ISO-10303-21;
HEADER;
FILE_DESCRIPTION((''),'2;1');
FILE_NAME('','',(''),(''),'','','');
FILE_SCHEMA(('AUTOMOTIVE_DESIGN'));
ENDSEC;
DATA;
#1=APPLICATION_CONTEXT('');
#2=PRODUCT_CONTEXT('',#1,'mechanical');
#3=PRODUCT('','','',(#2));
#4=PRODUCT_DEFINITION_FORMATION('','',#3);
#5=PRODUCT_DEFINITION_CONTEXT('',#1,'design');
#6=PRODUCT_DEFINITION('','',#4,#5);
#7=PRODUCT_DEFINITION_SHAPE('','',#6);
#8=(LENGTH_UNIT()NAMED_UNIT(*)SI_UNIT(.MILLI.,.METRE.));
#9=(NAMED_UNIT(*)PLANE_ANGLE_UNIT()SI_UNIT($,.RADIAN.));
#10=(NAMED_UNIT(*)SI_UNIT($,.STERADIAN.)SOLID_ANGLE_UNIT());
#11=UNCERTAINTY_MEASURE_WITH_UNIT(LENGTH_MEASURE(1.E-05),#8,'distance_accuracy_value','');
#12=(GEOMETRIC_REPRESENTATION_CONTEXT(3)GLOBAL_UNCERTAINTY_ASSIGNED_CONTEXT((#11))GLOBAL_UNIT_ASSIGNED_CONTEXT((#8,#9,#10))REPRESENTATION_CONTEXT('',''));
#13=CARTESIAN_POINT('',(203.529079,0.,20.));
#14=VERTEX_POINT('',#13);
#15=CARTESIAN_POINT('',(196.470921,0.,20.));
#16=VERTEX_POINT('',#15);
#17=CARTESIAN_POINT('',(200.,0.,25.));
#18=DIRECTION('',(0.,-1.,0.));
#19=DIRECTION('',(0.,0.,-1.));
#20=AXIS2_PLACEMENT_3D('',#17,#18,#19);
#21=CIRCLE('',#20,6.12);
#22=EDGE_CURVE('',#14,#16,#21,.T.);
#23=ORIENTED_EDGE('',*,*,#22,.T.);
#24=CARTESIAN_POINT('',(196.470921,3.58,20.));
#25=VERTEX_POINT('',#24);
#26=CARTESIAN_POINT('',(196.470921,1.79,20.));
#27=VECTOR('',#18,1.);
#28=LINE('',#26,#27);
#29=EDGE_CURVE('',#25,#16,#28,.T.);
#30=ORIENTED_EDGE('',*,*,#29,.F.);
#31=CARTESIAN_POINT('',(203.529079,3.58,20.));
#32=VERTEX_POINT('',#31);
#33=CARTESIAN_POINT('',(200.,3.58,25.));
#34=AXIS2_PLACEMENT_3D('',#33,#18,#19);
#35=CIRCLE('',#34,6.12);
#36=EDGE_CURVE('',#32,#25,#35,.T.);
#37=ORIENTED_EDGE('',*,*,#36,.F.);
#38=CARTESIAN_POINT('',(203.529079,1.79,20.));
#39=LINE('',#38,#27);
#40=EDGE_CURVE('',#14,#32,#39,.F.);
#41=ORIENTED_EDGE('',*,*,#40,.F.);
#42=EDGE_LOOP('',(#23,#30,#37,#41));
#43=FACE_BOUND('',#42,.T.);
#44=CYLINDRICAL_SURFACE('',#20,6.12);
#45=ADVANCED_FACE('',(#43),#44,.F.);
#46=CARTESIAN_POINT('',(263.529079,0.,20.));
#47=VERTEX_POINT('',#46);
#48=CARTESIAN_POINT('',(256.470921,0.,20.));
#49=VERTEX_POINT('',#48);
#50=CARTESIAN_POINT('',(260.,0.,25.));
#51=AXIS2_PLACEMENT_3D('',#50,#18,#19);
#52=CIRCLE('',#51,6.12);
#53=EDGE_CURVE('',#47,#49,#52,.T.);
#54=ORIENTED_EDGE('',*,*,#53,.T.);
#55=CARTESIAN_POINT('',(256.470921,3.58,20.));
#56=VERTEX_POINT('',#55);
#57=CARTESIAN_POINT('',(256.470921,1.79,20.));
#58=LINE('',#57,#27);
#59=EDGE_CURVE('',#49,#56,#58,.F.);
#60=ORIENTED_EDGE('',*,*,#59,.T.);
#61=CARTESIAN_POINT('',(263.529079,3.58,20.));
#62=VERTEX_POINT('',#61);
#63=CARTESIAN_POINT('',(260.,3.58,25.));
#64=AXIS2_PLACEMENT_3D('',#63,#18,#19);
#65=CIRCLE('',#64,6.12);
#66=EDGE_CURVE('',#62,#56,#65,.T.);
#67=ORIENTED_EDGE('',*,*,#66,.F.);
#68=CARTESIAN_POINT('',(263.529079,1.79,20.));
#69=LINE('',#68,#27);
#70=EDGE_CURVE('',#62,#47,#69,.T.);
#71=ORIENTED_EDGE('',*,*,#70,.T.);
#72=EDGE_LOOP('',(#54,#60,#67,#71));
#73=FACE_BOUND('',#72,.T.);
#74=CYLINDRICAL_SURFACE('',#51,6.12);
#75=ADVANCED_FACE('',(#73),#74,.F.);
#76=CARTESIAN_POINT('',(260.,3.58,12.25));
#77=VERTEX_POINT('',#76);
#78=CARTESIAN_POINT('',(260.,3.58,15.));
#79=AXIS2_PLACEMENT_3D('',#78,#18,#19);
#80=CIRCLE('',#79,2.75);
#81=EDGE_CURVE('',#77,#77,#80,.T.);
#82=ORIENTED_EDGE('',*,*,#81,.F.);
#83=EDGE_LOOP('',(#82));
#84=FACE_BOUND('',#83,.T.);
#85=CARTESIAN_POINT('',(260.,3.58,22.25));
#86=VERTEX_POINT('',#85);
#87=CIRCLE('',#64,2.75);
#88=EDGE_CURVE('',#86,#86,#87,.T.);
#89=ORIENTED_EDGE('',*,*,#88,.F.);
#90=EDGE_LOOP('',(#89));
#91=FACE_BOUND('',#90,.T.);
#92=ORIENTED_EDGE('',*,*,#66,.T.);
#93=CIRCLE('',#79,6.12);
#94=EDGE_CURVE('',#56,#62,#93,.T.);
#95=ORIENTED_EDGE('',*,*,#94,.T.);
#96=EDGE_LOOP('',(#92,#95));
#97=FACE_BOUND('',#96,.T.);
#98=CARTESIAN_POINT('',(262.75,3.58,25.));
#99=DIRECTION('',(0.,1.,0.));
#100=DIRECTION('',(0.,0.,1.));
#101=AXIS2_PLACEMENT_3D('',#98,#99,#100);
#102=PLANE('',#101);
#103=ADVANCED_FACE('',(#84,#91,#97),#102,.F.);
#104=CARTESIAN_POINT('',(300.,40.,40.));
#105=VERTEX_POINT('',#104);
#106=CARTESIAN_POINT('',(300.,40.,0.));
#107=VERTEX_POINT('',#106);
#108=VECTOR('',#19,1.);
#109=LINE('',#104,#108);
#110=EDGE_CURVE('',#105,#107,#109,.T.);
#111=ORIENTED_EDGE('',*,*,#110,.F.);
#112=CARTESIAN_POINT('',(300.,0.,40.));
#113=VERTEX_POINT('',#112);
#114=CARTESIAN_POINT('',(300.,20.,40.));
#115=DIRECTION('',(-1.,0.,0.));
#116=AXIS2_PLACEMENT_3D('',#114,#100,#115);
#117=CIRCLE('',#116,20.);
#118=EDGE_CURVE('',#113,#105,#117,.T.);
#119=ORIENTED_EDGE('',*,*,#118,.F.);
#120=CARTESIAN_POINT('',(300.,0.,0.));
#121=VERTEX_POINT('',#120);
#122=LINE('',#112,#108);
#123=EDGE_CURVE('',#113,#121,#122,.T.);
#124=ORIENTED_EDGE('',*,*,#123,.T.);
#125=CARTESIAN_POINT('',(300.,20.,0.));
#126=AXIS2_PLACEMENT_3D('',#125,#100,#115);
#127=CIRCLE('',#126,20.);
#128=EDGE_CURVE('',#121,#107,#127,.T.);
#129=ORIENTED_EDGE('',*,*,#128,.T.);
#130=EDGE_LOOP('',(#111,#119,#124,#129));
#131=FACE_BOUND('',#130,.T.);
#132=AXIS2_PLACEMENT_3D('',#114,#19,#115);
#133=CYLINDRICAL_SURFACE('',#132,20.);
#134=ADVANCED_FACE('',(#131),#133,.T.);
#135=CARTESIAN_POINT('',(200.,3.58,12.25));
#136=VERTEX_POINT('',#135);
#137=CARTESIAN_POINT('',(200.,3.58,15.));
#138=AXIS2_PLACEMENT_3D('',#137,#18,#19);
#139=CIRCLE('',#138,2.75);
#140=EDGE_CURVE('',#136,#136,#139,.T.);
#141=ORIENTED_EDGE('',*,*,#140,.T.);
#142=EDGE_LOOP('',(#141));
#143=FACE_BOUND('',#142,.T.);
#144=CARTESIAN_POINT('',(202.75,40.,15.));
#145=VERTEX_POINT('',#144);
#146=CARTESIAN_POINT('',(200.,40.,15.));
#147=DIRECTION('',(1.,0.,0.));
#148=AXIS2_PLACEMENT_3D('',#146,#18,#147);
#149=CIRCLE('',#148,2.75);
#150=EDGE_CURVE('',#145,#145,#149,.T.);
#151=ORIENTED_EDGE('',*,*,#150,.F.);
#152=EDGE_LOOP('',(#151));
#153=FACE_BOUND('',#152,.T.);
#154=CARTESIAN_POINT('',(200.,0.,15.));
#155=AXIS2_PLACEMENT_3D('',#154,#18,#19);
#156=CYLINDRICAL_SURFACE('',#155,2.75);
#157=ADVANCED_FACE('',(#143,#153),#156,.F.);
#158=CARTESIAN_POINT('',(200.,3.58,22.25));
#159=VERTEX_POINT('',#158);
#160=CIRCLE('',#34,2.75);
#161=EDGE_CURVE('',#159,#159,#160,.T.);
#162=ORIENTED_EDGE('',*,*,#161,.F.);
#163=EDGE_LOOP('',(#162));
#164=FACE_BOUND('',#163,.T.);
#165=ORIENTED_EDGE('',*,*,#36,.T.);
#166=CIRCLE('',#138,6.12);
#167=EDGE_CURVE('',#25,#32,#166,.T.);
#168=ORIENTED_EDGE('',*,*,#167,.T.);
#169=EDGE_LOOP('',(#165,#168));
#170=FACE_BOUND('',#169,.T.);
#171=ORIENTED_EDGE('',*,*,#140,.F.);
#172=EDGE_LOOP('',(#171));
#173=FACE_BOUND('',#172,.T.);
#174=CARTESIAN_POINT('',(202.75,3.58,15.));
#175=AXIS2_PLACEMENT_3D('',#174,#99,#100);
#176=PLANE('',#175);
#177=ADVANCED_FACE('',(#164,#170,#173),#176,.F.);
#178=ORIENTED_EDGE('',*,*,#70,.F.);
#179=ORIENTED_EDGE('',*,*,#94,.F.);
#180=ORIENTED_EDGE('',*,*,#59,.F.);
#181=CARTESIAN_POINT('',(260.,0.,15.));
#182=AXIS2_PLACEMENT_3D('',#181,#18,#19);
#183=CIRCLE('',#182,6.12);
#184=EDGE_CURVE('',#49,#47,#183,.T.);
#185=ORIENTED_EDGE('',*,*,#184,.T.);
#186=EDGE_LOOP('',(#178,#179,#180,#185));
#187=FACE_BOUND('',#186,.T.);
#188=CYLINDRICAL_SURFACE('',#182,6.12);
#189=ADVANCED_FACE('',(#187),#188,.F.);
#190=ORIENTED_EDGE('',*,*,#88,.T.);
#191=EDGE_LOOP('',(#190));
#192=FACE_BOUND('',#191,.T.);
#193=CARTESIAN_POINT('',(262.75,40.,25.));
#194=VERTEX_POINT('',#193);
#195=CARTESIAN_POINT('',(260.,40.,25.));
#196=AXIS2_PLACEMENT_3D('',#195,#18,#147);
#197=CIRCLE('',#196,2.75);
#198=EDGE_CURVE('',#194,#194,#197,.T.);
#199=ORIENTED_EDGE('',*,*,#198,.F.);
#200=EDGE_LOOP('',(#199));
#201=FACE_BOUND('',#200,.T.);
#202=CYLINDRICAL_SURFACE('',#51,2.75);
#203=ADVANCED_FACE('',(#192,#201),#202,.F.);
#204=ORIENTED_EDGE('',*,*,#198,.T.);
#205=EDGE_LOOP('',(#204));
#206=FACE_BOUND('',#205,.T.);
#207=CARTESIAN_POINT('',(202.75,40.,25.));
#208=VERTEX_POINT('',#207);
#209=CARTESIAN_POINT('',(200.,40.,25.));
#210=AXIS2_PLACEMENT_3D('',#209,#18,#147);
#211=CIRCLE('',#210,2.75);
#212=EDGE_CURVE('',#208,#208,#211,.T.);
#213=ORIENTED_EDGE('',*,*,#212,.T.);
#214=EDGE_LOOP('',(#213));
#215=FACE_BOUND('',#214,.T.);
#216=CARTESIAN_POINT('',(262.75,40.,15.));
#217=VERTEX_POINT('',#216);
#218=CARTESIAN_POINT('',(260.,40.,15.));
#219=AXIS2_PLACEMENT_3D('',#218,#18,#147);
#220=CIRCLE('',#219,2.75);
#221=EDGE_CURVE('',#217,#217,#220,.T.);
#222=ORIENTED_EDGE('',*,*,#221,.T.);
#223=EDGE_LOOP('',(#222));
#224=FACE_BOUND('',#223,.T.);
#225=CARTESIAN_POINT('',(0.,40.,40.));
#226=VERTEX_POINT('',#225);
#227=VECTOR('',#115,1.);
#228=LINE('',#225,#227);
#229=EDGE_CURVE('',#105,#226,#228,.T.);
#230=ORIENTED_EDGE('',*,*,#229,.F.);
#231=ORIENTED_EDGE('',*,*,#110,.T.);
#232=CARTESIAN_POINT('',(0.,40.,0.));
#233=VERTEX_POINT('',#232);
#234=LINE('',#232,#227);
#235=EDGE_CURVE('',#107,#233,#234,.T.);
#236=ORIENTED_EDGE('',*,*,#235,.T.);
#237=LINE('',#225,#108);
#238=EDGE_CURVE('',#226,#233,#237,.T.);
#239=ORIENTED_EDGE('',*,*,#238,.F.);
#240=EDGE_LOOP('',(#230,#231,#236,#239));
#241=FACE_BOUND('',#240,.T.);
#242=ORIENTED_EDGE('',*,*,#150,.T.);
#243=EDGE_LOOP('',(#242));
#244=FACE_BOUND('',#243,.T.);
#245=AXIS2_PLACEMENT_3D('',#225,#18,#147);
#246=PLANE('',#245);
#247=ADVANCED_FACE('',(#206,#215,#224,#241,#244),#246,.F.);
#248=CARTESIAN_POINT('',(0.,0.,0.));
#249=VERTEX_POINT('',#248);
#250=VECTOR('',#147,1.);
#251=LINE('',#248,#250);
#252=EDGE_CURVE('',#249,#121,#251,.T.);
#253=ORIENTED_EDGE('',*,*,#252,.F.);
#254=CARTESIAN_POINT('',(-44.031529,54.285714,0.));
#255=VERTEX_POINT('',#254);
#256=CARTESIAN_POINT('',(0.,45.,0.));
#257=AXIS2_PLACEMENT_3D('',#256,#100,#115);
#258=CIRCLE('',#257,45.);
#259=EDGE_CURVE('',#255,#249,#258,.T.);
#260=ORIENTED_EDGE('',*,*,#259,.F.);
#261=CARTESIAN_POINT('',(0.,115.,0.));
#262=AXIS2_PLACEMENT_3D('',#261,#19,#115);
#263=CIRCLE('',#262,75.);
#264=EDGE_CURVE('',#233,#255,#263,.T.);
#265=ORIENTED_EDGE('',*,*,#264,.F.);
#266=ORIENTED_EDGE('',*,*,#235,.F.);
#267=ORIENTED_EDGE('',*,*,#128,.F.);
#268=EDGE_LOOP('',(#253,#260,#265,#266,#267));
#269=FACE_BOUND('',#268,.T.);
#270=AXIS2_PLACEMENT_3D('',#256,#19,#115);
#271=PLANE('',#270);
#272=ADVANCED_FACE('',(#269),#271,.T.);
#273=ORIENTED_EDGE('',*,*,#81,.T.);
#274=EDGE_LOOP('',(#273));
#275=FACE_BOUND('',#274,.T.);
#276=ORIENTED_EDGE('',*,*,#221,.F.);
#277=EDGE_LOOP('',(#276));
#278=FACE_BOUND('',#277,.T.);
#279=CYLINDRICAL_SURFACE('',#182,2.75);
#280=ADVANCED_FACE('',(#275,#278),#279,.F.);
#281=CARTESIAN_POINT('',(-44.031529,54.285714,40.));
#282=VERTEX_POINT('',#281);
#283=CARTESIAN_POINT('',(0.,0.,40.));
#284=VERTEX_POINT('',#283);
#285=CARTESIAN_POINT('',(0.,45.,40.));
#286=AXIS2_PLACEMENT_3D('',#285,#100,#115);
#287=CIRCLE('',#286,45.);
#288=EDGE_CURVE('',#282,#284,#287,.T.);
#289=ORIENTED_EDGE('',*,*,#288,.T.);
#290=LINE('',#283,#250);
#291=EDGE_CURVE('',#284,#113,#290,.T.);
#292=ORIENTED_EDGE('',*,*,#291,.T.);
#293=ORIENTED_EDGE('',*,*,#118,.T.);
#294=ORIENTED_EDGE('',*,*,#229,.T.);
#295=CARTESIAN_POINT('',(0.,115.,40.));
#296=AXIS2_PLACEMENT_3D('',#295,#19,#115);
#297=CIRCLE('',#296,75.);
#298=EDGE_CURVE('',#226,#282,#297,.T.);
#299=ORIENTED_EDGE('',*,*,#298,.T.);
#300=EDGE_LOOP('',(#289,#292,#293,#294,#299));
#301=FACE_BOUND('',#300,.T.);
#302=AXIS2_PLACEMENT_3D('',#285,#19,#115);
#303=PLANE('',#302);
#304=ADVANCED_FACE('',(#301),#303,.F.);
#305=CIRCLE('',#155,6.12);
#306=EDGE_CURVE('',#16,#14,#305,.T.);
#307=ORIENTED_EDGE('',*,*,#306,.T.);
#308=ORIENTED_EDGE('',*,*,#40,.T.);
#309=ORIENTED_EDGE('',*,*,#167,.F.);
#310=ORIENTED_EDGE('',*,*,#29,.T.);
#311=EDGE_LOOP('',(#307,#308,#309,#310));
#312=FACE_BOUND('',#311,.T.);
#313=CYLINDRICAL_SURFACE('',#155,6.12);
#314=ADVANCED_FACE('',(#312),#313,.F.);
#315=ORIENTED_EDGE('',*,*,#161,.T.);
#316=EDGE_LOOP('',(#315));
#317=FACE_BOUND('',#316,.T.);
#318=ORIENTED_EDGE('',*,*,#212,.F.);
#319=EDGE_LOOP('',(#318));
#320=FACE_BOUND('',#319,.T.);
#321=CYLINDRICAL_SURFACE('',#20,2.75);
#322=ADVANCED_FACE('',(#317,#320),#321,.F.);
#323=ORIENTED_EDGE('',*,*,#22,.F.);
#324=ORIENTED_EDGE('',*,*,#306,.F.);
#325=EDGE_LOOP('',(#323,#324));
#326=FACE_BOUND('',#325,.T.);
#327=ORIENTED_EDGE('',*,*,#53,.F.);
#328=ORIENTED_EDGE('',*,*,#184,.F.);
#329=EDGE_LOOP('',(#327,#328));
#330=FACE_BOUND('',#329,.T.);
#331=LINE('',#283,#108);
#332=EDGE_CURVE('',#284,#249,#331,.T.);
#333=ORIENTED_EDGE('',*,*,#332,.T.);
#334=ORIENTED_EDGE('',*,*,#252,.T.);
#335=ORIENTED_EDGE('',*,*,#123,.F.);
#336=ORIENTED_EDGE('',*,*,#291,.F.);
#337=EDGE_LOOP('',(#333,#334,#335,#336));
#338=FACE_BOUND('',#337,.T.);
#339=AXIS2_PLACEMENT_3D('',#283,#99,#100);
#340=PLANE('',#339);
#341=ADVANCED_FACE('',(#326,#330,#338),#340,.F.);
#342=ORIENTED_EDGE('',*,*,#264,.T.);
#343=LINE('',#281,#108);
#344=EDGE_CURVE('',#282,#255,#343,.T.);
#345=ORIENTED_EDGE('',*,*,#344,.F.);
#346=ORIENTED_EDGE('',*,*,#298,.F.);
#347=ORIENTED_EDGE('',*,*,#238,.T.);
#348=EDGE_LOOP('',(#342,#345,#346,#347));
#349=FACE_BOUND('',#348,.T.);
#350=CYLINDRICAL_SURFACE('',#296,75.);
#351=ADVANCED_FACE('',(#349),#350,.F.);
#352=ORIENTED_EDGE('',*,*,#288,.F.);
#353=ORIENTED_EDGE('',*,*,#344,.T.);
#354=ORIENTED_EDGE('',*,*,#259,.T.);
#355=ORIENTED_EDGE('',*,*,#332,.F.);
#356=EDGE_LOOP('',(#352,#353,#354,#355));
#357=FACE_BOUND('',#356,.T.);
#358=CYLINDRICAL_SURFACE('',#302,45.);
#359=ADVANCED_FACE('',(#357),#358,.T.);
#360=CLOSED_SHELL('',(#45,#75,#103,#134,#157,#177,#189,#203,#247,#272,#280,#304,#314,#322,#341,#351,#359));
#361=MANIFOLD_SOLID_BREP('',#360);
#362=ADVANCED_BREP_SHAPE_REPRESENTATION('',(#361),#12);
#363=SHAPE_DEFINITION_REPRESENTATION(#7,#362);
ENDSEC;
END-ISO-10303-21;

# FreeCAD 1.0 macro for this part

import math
import FreeCAD as App
import Part
import Sketcher

doc = App.newDocument("Part")
body = doc.addObject("PartDesign::Body", "Body")

sketch1 = doc.addObject("Sketcher::SketchObject", "Sketch")
body.addObject(sketch1)
sketch1.AttachmentSupport = (doc.XY_Plane, [""])
sketch1.MapMode = "FlatFace"
sketch1.addGeometry([
    Part.LineSegment(App.Vector(0, 0, 0), App.Vector(300, 0, 0)),
    Part.ArcOfCircle(Part.Circle(App.Vector(300, 20, 0), App.Vector(0, 0, 1), 20), math.radians(-90), math.radians(90)),
    Part.LineSegment(App.Vector(300, 40, 0), App.Vector(0, 40, 0)),
    Part.ArcOfCircle(Part.Circle(App.Vector(0, 115, 0), App.Vector(0, 0, 1), 75), math.radians(-126), math.radians(-90)),
    Part.ArcOfCircle(Part.Circle(App.Vector(0, 45, 0), App.Vector(0, 0, 1), 45), math.radians(168), math.radians(270)),
], False)
sketch1.addConstraint([
    Sketcher.Constraint("Tangent", 0, 2, 1, 1),
    Sketcher.Constraint("Tangent", 1, 2, 2, 1),
    Sketcher.Constraint("Tangent", 2, 2, 3, 2),
    Sketcher.Constraint("Coincident", 3, 1, 4, 1),
    Sketcher.Constraint("Tangent", 4, 2, 0, 1),
    Sketcher.Constraint("Horizontal", 0),
    Sketcher.Constraint("Horizontal", 2),
    Sketcher.Constraint("Coincident", 4, 2, -1, 1),
    Sketcher.Constraint("PointOnObject", 3, 3, -2),
    Sketcher.Constraint("Radius", 1, 20.0),
    Sketcher.Constraint("Radius", 3, 75.0),
    Sketcher.Constraint("Radius", 4, 45.0),
    Sketcher.Constraint("DistanceX", 0, 1, 0, 2, 300.0),
])
pad1 = doc.addObject("PartDesign::Pad", "Pad")
body.addObject(pad1)
pad1.Profile = sketch1
pad1.Length = 40

sketch2 = doc.addObject("Sketcher::SketchObject", "Sketch001")
body.addObject(sketch2)
sketch2.AttachmentSupport = (doc.XZ_Plane, [""])
sketch2.MapMode = "FlatFace"
sketch2.addGeometry([
    Part.Circle(App.Vector(260, 15, 0), App.Vector(0, 0, 1), 2.8),
    Part.Circle(App.Vector(260, 25, 0), App.Vector(0, 0, 1), 2.8),
    Part.Circle(App.Vector(200, 25, 0), App.Vector(0, 0, 1), 2.8),
    Part.Circle(App.Vector(200, 15, 0), App.Vector(0, 0, 1), 2.8),
], False)
sketch2.addConstraint([
    Sketcher.Constraint("Equal", 0, 1),
    Sketcher.Constraint("Equal", 1, 2),
    Sketcher.Constraint("Equal", 2, 3),
    Sketcher.Constraint("Horizontal", 1, 3, 2, 3),
    Sketcher.Constraint("Horizontal", 0, 3, 3, 3),
    Sketcher.Constraint("Vertical", 0, 3, 1, 3),
    Sketcher.Constraint("Vertical", 2, 3, 3, 3),
    Sketcher.Constraint("Diameter", 0, 5.5),
    Sketcher.Constraint("DistanceX", -1, 1, 0, 3, 260.0),
    Sketcher.Constraint("DistanceY", -1, 1, 0, 3, 15.0),
    Sketcher.Constraint("DistanceY", -1, 1, 1, 3, 25.0),
    Sketcher.Constraint("DistanceX", -1, 1, 2, 3, 200.0),
])
doc.recompute()
hole = doc.addObject("PartDesign::Hole", "Hole")
body.addObject(hole)
hole.Profile = sketch2
hole.ThreadType = "None"
hole.Diameter = 5.5
hole.DepthType = "ThroughAll"
hole.HoleCutType = "Counterbore"
hole.HoleCutDiameter = 12.24
hole.HoleCutDepth = 3.58

doc.recompute()
